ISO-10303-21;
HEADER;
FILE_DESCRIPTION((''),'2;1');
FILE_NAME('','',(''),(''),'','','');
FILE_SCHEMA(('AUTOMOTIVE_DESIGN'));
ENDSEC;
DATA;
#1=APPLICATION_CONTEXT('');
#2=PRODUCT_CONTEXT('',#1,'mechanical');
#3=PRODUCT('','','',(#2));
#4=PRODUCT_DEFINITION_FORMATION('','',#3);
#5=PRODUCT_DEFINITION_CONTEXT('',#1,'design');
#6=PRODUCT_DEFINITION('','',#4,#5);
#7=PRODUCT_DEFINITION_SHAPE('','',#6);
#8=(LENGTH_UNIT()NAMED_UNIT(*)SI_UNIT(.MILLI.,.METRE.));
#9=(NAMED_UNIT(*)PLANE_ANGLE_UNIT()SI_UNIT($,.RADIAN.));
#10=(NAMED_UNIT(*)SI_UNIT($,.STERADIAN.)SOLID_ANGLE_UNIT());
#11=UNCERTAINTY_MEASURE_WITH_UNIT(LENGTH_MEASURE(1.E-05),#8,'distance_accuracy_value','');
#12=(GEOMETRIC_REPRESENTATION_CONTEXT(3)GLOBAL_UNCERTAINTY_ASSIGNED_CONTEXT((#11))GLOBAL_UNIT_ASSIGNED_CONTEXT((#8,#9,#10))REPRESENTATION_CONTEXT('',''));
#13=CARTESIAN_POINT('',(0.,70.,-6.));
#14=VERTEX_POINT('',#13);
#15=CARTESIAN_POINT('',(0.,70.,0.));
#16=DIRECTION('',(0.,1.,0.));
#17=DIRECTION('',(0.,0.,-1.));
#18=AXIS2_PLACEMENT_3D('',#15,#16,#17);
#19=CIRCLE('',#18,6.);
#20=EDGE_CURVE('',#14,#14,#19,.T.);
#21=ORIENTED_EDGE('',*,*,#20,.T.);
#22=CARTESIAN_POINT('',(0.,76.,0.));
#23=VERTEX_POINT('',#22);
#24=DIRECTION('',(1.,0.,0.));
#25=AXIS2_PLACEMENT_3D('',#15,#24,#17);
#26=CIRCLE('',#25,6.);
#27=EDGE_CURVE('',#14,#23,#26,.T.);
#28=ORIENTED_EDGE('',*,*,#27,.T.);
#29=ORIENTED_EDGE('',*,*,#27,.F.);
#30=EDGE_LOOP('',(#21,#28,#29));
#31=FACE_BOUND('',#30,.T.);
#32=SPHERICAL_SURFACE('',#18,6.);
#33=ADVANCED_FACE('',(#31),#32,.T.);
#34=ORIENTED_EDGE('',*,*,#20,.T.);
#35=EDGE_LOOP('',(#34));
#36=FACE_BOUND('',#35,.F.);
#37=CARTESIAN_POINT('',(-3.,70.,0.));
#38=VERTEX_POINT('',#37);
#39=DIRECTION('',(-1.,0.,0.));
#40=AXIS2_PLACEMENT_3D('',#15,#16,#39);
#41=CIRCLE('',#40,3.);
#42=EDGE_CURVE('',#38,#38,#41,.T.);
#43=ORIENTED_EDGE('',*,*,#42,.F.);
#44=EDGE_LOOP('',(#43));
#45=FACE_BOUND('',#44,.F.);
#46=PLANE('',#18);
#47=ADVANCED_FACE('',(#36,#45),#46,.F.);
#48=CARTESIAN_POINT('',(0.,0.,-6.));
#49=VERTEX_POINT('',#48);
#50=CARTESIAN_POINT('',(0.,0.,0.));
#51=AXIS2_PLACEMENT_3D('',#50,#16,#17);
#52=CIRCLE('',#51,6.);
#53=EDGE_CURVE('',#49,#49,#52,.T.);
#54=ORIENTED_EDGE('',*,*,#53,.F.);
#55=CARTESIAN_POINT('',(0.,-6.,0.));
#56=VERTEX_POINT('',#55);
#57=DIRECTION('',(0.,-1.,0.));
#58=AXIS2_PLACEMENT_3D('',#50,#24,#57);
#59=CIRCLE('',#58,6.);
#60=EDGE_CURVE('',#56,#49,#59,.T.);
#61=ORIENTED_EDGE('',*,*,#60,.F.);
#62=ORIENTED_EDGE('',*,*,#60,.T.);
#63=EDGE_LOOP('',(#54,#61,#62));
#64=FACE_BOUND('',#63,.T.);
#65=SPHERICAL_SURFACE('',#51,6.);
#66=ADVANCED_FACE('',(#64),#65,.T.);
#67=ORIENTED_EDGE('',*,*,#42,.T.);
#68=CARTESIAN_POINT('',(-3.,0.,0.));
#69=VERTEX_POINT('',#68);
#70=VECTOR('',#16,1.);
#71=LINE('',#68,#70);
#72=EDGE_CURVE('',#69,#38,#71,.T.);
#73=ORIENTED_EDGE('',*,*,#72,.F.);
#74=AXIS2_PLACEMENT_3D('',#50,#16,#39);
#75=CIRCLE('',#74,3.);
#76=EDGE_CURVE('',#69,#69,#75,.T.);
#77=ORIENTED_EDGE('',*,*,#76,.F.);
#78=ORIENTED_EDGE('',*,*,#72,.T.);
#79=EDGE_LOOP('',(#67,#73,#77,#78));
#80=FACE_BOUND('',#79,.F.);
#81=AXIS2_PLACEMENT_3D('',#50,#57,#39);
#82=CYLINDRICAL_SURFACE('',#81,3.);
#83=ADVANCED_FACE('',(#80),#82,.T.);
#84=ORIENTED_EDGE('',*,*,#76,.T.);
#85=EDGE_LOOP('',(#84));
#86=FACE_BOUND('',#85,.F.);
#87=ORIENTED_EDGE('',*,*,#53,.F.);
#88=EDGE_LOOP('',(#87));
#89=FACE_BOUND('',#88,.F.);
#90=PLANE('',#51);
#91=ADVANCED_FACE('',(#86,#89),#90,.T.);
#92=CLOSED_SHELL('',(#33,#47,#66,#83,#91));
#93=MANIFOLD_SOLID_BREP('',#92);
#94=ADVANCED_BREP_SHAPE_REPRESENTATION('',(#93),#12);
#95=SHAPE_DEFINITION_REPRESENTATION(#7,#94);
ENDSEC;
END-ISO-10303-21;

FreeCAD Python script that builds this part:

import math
import FreeCAD as App
import Part
import Sketcher
from FreeCAD import Vector
Q = App.Units.Quantity

doc = App.newDocument("Part")
body = doc.addObject("PartDesign::Body", "Body")

# Sketch on XZ plane
sketch1 = body.newObject("Sketcher::SketchObject", "Sketch")
sketch1.AttachmentSupport = (doc.getObject("XZ_Plane"), [""])
sketch1.MapMode = "FlatFace"
sketch1.addGeometry(Part.Circle(Vector(0, 0, 0), Vector(0, 0, 1), 3), False)
sketch1.addConstraint(Sketcher.Constraint("Coincident", 0, 3, -1, 1))
sketch1.addConstraint(Sketcher.Constraint("Diameter", 0, Q("6 mm")))
pad1 = body.newObject("PartDesign::Pad", "Pad")
pad1.Profile = sketch1
pad1.Length = 70
pad1.Reversed = True

# Sketch on YZ plane
sketch2 = body.newObject("Sketcher::SketchObject", "Sketch001")
sketch2.AttachmentSupport = (doc.getObject("YZ_Plane"), [""])
sketch2.MapMode = "FlatFace"
sketch2.addGeometry(Part.LineSegment(Vector(0, -9, 0), Vector(0, 0, 0)), False)
sketch2.addGeometry(Part.LineSegment(Vector(0, 0, 0), Vector(-9, 0, 0)), False)
sketch2.addGeometry(Part.ArcOfCircle(Part.Circle(Vector(0, 0, 0), Vector(0, 0, 1), 9), math.radians(180), math.radians(270)), False)
sketch2.addGeometry(Part.LineSegment(Vector(70, 0, 0), Vector(70, -9, 0)), False)
sketch2.addGeometry(Part.ArcOfCircle(Part.Circle(Vector(70, 0, 0), Vector(0, 0, 1), 9), math.radians(-90), math.radians(0)), False)
sketch2.addGeometry(Part.LineSegment(Vector(79, 0, 0), Vector(70, 0, 0)), False)
sketch2.addConstraint(Sketcher.Constraint("Coincident", 0, 2, 1, 1))
sketch2.addConstraint(Sketcher.Constraint("Coincident", 1, 2, 2, 1))
sketch2.addConstraint(Sketcher.Constraint("Coincident", 2, 2, 0, 1))
sketch2.addConstraint(Sketcher.Constraint("Coincident", 3, 2, 4, 1))
sketch2.addConstraint(Sketcher.Constraint("Coincident", 4, 2, 5, 1))
sketch2.addConstraint(Sketcher.Constraint("Coincident", 5, 2, 3, 1))
sketch2.addConstraint(Sketcher.Constraint("Vertical", 0))
sketch2.addConstraint(Sketcher.Constraint("Horizontal", 1))
sketch2.addConstraint(Sketcher.Constraint("Vertical", 3))
sketch2.addConstraint(Sketcher.Constraint("Horizontal", 5))
sketch2.addConstraint(Sketcher.Constraint("Coincident", 2, 3, -1, 1))
sketch2.addConstraint(Sketcher.Constraint("Coincident", 0, 2, -1, 1))
sketch2.addConstraint(Sketcher.Constraint("Coincident", 5, 2, 4, 3))
sketch2.addConstraint(Sketcher.Constraint("Equal", 2, 4))
sketch2.addConstraint(Sketcher.Constraint("PointOnObject", 4, 3, -1))
sketch2.addConstraint(Sketcher.Constraint("Radius", 2, Q("9 mm")))
sketch2.addConstraint(Sketcher.Constraint("DistanceX", -1, 1, 4, 3, Q("70 mm")))
revolution = body.newObject("PartDesign::Revolution", "Revolution")
revolution.Profile = sketch2
revolution.ReferenceAxis = (sketch2, ["H_Axis"])
revolution.Angle = 360

# Sketch on YZ plane
sketch3 = body.newObject("Sketcher::SketchObject", "Sketch002")
sketch3.AttachmentSupport = (doc.getObject("YZ_Plane"), [""])
sketch3.MapMode = "FlatFace"
sketch3.addGeometry(Part.LineSegment(Vector(-14, -10, 0), Vector(0, -10, 0)), False)
sketch3.addGeometry(Part.LineSegment(Vector(0, -10, 0), Vector(0, 13, 0)), False)
sketch3.addGeometry(Part.LineSegment(Vector(0, 13, 0), Vector(-14, 13, 0)), False)
sketch3.addGeometry(Part.LineSegment(Vector(-14, 13, 0), Vector(-14, -10, 0)), False)
sketch3.addGeometry(Part.LineSegment(Vector(70, 12, 0), Vector(70, -9, 0)), False)
sketch3.addGeometry(Part.LineSegment(Vector(70, -9, 0), Vector(84, -12, 0)), False)
sketch3.addGeometry(Part.LineSegment(Vector(84, -12, 0), Vector(84, 12, 0)), False)
sketch3.addGeometry(Part.LineSegment(Vector(84, 12, 0), Vector(70, 12, 0)), False)
sketch3.addConstraint(Sketcher.Constraint("Coincident", 0, 2, 1, 1))
sketch3.addConstraint(Sketcher.Constraint("Coincident", 1, 2, 2, 1))
sketch3.addConstraint(Sketcher.Constraint("Coincident", 2, 2, 3, 1))
sketch3.addConstraint(Sketcher.Constraint("Coincident", 3, 2, 0, 1))
sketch3.addConstraint(Sketcher.Constraint("Coincident", 4, 2, 5, 1))
sketch3.addConstraint(Sketcher.Constraint("Coincident", 5, 2, 6, 1))
sketch3.addConstraint(Sketcher.Constraint("Coincident", 6, 2, 7, 1))
sketch3.addConstraint(Sketcher.Constraint("Coincident", 7, 2, 4, 1))
sketch3.addConstraint(Sketcher.Constraint("Horizontal", 0))
sketch3.addConstraint(Sketcher.Constraint("Vertical", 1))
sketch3.addConstraint(Sketcher.Constraint("Horizontal", 2))
sketch3.addConstraint(Sketcher.Constraint("Vertical", 3))
sketch3.addConstraint(Sketcher.Constraint("Vertical", 4))
sketch3.addConstraint(Sketcher.Constraint("Vertical", 6))
sketch3.addConstraint(Sketcher.Constraint("Horizontal", 7))
sketch3.addConstraint(Sketcher.Constraint("PointOnObject", 0, 2, -2))
sketch3.addConstraint(Sketcher.Constraint("DistanceX", -1, 1, 4, 2, Q("70 mm")))
sketch3.addConstraint(Sketcher.Constraint("DistanceY", 4, 2, -1, 1, Q("9 mm")))
sketch3.addConstraint(Sketcher.Constraint("DistanceY", 1, 1, 1, 2, Q("23.51 mm")))
sketch3.addConstraint(Sketcher.Constraint("DistanceY", 4, 2, 4, 1, Q("21.45 mm")))
sketch3.addConstraint(Sketcher.Constraint("DistanceY", 6, 1, 6, 2, Q("24.784 mm")))
sketch3.addConstraint(Sketcher.Constraint("DistanceX", 0, 1, 0, 2, Q("13.8396 mm")))
sketch3.addConstraint(Sketcher.Constraint("DistanceX", 7, 2, 7, 1, Q("13.9063 mm")))
sketch3.addConstraint(Sketcher.Constraint("DistanceY", 0, 2, -1, 1, Q("10.1336 mm")))
pocket1 = body.newObject("PartDesign::Pocket", "Pocket")
pocket1.Profile = sketch3
pocket1.Length = 20
pocket1.Midplane = True

# Sketch on YZ plane
sketch4 = body.newObject("Sketcher::SketchObject", "Sketch003")
sketch4.AttachmentSupport = (doc.getObject("YZ_Plane"), [""])
sketch4.MapMode = "FlatFace"
sketch4.addGeometry(Part.LineSegment(Vector(0, -6, 0), Vector(0, 0, 0)), False)
sketch4.addGeometry(Part.LineSegment(Vector(0, 0, 0), Vector(-6, 0, 0)), False)
sketch4.addGeometry(Part.ArcOfCircle(Part.Circle(Vector(0, 0, 0), Vector(0, 0, 1), 6), math.radians(180), math.radians(270)), False)
sketch4.addGeometry(Part.LineSegment(Vector(70, 0, 0), Vector(70, -6, 0)), False)
sketch4.addGeometry(Part.ArcOfCircle(Part.Circle(Vector(70, 0, 0), Vector(0, 0, 1), 6), math.radians(-90), math.radians(0)), False)
sketch4.addGeometry(Part.LineSegment(Vector(76, 0, 0), Vector(70, 0, 0)), False)
sketch4.addConstraint(Sketcher.Constraint("Coincident", 0, 2, 1, 1))
sketch4.addConstraint(Sketcher.Constraint("Coincident", 1, 2, 2, 1))
sketch4.addConstraint(Sketcher.Constraint("Coincident", 2, 2, 0, 1))
sketch4.addConstraint(Sketcher.Constraint("Coincident", 3, 2, 4, 1))
sketch4.addConstraint(Sketcher.Constraint("Coincident", 4, 2, 5, 1))
sketch4.addConstraint(Sketcher.Constraint("Coincident", 5, 2, 3, 1))
sketch4.addConstraint(Sketcher.Constraint("Vertical", 0))
sketch4.addConstraint(Sketcher.Constraint("Horizontal", 1))
sketch4.addConstraint(Sketcher.Constraint("Vertical", 3))
sketch4.addConstraint(Sketcher.Constraint("Horizontal", 5))
sketch4.addConstraint(Sketcher.Constraint("Coincident", 2, 3, -1, 1))
sketch4.addConstraint(Sketcher.Constraint("Coincident", 0, 2, -1, 1))
sketch4.addConstraint(Sketcher.Constraint("Coincident", 5, 2, 4, 3))
sketch4.addConstraint(Sketcher.Constraint("Equal", 2, 4))
sketch4.addConstraint(Sketcher.Constraint("PointOnObject", 4, 3, -1))
sketch4.addConstraint(Sketcher.Constraint("Radius", 2, Q("6 mm")))
sketch4.addConstraint(Sketcher.Constraint("DistanceX", -1, 1, 4, 3, Q("70 mm")))
revolution2 = body.newObject("PartDesign::Revolution", "Revolution001")
revolution2.Profile = sketch4
revolution2.ReferenceAxis = (sketch4, ["H_Axis"])
revolution2.Angle = 360

doc.recompute()
